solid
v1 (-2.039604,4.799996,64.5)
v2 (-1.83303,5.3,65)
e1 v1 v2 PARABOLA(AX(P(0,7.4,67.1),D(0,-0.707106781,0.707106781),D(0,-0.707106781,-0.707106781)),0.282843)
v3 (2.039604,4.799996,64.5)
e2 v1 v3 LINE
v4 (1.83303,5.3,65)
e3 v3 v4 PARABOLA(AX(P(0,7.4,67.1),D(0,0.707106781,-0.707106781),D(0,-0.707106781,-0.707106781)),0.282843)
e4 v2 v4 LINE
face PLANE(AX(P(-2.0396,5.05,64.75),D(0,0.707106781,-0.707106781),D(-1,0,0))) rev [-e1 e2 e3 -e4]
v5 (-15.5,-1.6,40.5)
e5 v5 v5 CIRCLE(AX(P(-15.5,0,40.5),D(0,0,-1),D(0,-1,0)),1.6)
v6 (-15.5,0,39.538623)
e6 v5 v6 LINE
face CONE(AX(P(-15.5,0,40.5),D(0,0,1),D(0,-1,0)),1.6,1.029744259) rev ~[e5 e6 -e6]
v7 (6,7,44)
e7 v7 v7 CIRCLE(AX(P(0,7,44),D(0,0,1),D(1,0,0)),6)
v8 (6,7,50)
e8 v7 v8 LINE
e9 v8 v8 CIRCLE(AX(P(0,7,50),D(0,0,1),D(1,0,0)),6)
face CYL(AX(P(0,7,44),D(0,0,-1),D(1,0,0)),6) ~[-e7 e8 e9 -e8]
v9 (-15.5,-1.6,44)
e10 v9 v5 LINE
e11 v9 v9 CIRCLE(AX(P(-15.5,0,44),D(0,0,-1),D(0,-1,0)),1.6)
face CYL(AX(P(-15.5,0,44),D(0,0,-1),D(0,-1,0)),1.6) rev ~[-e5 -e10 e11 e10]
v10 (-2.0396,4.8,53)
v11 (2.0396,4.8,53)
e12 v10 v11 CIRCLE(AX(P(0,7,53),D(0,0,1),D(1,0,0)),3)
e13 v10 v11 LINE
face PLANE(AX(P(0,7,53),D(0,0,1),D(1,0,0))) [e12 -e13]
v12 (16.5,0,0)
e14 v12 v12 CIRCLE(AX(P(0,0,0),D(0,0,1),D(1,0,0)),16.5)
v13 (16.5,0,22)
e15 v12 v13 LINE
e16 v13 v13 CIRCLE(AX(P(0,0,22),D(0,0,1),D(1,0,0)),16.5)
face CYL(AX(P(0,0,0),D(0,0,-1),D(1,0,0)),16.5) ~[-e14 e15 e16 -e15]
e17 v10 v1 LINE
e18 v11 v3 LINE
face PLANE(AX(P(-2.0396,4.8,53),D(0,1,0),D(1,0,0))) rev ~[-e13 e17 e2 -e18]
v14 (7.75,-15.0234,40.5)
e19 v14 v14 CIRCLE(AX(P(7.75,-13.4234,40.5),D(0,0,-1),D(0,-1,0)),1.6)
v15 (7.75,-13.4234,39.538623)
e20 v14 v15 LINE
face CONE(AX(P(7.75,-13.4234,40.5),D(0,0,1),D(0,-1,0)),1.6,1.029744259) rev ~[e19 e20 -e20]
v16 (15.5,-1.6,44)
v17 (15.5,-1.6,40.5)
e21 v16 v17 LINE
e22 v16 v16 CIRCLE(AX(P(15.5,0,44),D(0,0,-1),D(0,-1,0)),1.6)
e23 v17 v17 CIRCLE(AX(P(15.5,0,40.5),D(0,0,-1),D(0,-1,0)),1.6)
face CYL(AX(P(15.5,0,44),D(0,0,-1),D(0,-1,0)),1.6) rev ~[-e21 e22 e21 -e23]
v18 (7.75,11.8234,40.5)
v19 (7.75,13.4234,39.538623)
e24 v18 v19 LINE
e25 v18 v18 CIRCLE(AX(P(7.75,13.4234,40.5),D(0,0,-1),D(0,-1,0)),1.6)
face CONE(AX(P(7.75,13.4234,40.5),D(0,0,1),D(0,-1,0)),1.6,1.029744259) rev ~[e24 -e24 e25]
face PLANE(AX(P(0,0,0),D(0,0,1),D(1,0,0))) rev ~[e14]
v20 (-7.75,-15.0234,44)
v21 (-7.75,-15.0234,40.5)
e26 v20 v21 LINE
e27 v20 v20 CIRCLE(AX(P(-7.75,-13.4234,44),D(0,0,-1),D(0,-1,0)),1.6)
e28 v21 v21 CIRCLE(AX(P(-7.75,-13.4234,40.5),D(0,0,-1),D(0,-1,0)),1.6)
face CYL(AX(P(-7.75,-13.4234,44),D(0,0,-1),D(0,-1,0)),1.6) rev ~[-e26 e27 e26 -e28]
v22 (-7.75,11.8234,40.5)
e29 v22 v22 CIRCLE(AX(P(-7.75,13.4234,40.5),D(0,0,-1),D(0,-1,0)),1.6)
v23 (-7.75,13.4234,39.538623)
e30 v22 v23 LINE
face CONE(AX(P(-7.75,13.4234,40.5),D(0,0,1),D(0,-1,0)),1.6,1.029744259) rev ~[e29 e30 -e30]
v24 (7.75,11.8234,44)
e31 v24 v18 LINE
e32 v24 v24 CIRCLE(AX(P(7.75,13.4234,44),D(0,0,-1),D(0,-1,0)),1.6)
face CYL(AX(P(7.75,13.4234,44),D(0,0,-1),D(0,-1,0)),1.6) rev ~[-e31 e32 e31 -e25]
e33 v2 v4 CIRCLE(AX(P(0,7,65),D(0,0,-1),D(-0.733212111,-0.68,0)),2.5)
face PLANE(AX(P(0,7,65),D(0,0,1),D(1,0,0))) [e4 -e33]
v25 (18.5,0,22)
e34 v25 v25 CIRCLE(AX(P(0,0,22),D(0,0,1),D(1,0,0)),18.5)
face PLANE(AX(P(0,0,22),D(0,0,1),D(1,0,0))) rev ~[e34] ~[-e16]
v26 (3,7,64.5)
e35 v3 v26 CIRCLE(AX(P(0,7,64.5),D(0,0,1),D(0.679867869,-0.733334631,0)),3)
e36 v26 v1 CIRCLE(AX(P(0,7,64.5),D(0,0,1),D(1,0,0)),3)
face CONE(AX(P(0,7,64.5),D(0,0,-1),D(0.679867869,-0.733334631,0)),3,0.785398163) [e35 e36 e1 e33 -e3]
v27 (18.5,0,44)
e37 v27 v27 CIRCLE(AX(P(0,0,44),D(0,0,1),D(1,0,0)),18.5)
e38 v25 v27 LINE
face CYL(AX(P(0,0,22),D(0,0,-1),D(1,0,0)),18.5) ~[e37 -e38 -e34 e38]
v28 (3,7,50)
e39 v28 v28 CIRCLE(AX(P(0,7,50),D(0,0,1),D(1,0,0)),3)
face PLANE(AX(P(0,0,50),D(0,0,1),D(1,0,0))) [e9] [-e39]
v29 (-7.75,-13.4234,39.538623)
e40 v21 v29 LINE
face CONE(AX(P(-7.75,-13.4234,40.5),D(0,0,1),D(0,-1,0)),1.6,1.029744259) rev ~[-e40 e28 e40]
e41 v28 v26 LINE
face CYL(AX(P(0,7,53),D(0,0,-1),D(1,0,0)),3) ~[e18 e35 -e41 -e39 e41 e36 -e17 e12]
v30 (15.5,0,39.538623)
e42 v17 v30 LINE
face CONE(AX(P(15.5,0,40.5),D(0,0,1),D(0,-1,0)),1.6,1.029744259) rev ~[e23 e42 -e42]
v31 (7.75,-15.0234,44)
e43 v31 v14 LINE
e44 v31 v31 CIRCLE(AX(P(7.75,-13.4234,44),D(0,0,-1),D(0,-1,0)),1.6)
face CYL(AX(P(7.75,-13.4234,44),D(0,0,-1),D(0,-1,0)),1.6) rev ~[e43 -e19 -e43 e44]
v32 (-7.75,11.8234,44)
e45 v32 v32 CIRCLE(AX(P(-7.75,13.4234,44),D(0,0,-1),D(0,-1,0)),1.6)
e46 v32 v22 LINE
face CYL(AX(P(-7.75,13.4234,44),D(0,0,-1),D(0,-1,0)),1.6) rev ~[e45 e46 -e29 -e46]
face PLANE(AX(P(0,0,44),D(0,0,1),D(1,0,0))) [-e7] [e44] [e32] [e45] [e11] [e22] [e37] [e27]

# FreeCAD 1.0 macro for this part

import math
import FreeCAD as App
import Part
import Sketcher
Q = App.Units.Quantity


def edges_at(feature, points):
    """Names of the edges that pass closest to the given points."""
    edges = feature.Shape.Edges
    near = lambda p: min(range(len(edges)), key=lambda i: edges[i].distToShape(Part.Vertex(*p))[0])
    return sorted({f"Edge{near(p) + 1}" for p in points})

doc = App.newDocument("Part")
body = doc.addObject("PartDesign::Body", "Body")

# Sketch on XY plane
sketch1 = body.newObject("Sketcher::SketchObject", "Sketch")
sketch1.AttachmentSupport = (doc.getObject("XY_Plane"), [""])
sketch1.MapMode = "FlatFace"
sketch1.addGeometry(Part.Circle(App.Vector(0, 0, 0), App.Vector(0, 0, 1), 16), False)
sketch1.addConstraint(Sketcher.Constraint("Coincident", 0, 3, -1, 1))
sketch1.addConstraint(Sketcher.Constraint("Diameter", 0, Q("33 mm")))
pad1 = body.newObject("PartDesign::Pad", "Pad")
pad1.Profile = sketch1
pad1.Length = 22

# Sketch on XY plane
sketch2 = body.newObject("Sketcher::SketchObject", "Sketch001")
sketch2.AttachmentSupport = (doc.getObject("XY_Plane"), [""])
sketch2.MapMode = "FlatFace"
sketch2.AttachmentOffset = App.Placement(App.Vector(0, 0, 22), App.Rotation())
sketch2.addGeometry(Part.Circle(App.Vector(0, 0, 0), App.Vector(0, 0, 1), 18), False)
sketch2.addConstraint(Sketcher.Constraint("Coincident", 0, 3, -1, 1))
sketch2.addConstraint(Sketcher.Constraint("Diameter", 0, Q("37 mm")))
pad2 = body.newObject("PartDesign::Pad", "Pad001")
pad2.Profile = sketch2
pad2.Length = 22

# Sketch on XY plane
sketch3 = body.newObject("Sketcher::SketchObject", "Sketch002")
sketch3.AttachmentSupport = (doc.getObject("XY_Plane"), [""])
sketch3.MapMode = "FlatFace"
sketch3.AttachmentOffset = App.Placement(App.Vector(0, 0, 44), App.Rotation())
sketch3.addGeometry(Part.Circle(App.Vector(0, 7, 0), App.Vector(0, 0, 1), 6), False)
sketch3.addConstraint(Sketcher.Constraint("PointOnObject", 0, 3, -2))
sketch3.addConstraint(Sketcher.Constraint("Diameter", 0, Q("12 mm")))
sketch3.addConstraint(Sketcher.Constraint("DistanceY", -1, 1, 0, 3, Q("7 mm")))
pad3 = body.newObject("PartDesign::Pad", "Pad002")
pad3.Profile = sketch3
pad3.Length = 6

# Sketch on XY plane
sketch4 = body.newObject("Sketcher::SketchObject", "Sketch003")
sketch4.AttachmentSupport = (doc.getObject("XY_Plane"), [""])
sketch4.MapMode = "FlatFace"
sketch4.AttachmentOffset = App.Placement(App.Vector(0, 0, 50), App.Rotation())
sketch4.addGeometry(Part.Circle(App.Vector(0, 7, 0), App.Vector(0, 0, 1), 3), False)
sketch4.addConstraint(Sketcher.Constraint("PointOnObject", 0, 3, -2))
sketch4.addConstraint(Sketcher.Constraint("Diameter", 0, Q("6 mm")))
sketch4.addConstraint(Sketcher.Constraint("DistanceY", -1, 1, 0, 3, Q("7 mm")))
pad4 = body.newObject("PartDesign::Pad", "Pad003")
pad4.Profile = sketch4
pad4.Length = 3

# Sketch on XY plane
sketch5 = body.newObject("Sketcher::SketchObject", "Sketch004")
sketch5.AttachmentSupport = (doc.getObject("XY_Plane"), [""])
sketch5.MapMode = "FlatFace"
sketch5.AttachmentOffset = App.Placement(App.Vector(0, 0, 53), App.Rotation())
sketch5.addGeometry(Part.ArcOfCircle(Part.Circle(App.Vector(0, 7, 0), App.Vector(0, 0, 1), 3), math.radians(-47), math.radians(227)), False)
sketch5.addGeometry(Part.LineSegment(App.Vector(2, 4.8, 0), App.Vector(-2, 4.8, 0)), False)
sketch5.addConstraint(Sketcher.Constraint("Coincident", 0, 1, 1, 1))
sketch5.addConstraint(Sketcher.Constraint("Coincident", 1, 2, 0, 2))
sketch5.addConstraint(Sketcher.Constraint("Horizontal", 1))
sketch5.addConstraint(Sketcher.Constraint("PointOnObject", 0, 3, -2))
sketch5.addConstraint(Sketcher.Constraint("Radius", 0, Q("3 mm")))
sketch5.addConstraint(Sketcher.Constraint("DistanceY", -1, 1, 0, 3, Q("7 mm")))
sketch5.addConstraint(Sketcher.Constraint("DistanceY", -1, 1, 0, 1, Q("4.8 mm")))
pad5 = body.newObject("PartDesign::Pad", "Pad004")
pad5.Profile = sketch5
pad5.Length = 12
doc.recompute()

chamfer = body.newObject("PartDesign::Chamfer", "Chamfer")
chamfer.Base = (pad5, edges_at(pad5, [(0, 10, 65), (0, 4.8, 65)]))
chamfer.Size = 0.5

# Sketch on XY plane
sketch6 = body.newObject("Sketcher::SketchObject", "Sketch005")
sketch6.AttachmentSupport = (doc.getObject("XY_Plane"), [""])
sketch6.MapMode = "FlatFace"
sketch6.AttachmentOffset = App.Placement(App.Vector(0, 0, 44), App.Rotation())
sketch6.addGeometry(Part.Circle(App.Vector(15.5, 0, 0), App.Vector(0, 0, 1), 1.6), False)
sketch6.addGeometry(Part.Circle(App.Vector(-15.5, 0, 0), App.Vector(0, 0, 1), 1.6), False)
sketch6.addGeometry(Part.Circle(App.Vector(-7.8, -13.4, 0), App.Vector(0, 0, 1), 1.6), False)
sketch6.addGeometry(Part.Circle(App.Vector(7.8, 13.4, 0), App.Vector(0, 0, 1), 1.6), False)
sketch6.addGeometry(Part.Circle(App.Vector(7.8, -13.4, 0), App.Vector(0, 0, 1), 1.6), False)
sketch6.addGeometry(Part.Circle(App.Vector(-7.8, 13.4, 0), App.Vector(0, 0, 1), 1.6), False)
sketch6.addConstraint(Sketcher.Constraint("Equal", 0, 1))
sketch6.addConstraint(Sketcher.Constraint("Equal", 1, 2))
sketch6.addConstraint(Sketcher.Constraint("Equal", 2, 3))
sketch6.addConstraint(Sketcher.Constraint("Equal", 3, 4))
sketch6.addConstraint(Sketcher.Constraint("Equal", 4, 5))
sketch6.addConstraint(Sketcher.Constraint("Symmetric", 0, 3, 1, 3, -1, 1))
sketch6.addConstraint(Sketcher.Constraint("Symmetric", 2, 3, 3, 3, -1, 1))
sketch6.addConstraint(Sketcher.Constraint("Symmetric", 4, 3, 5, 3, -1, 1))
sketch6.addConstraint(Sketcher.Constraint("Symmetric", 2, 3, 4, 3, -2))
sketch6.addConstraint(Sketcher.Constraint("PointOnObject", 0, 3, -1))
sketch6.addConstraint(Sketcher.Constraint("Diameter", 0, Q("3.2 mm")))
sketch6.addConstraint(Sketcher.Constraint("DistanceX", 1, 3, 0, 3, Q("31 mm")))
sketch6.addConstraint(Sketcher.Constraint("DistanceX", 2, 3, 3, 3, Q("15.5 mm")))
sketch6.addConstraint(Sketcher.Constraint("DistanceY", 2, 3, -1, 1, Q("13.4234 mm")))
doc.recompute()
hole = body.newObject("PartDesign::Hole", "Hole")
hole.Profile = sketch6
hole.ThreadType = "None"
hole.Diameter = 3.2
hole.DepthType = "Dimension"
hole.Depth = 3.5
hole.DrillPoint = "Angled"
hole.DrillPointAngle = 118

doc.recompute()
